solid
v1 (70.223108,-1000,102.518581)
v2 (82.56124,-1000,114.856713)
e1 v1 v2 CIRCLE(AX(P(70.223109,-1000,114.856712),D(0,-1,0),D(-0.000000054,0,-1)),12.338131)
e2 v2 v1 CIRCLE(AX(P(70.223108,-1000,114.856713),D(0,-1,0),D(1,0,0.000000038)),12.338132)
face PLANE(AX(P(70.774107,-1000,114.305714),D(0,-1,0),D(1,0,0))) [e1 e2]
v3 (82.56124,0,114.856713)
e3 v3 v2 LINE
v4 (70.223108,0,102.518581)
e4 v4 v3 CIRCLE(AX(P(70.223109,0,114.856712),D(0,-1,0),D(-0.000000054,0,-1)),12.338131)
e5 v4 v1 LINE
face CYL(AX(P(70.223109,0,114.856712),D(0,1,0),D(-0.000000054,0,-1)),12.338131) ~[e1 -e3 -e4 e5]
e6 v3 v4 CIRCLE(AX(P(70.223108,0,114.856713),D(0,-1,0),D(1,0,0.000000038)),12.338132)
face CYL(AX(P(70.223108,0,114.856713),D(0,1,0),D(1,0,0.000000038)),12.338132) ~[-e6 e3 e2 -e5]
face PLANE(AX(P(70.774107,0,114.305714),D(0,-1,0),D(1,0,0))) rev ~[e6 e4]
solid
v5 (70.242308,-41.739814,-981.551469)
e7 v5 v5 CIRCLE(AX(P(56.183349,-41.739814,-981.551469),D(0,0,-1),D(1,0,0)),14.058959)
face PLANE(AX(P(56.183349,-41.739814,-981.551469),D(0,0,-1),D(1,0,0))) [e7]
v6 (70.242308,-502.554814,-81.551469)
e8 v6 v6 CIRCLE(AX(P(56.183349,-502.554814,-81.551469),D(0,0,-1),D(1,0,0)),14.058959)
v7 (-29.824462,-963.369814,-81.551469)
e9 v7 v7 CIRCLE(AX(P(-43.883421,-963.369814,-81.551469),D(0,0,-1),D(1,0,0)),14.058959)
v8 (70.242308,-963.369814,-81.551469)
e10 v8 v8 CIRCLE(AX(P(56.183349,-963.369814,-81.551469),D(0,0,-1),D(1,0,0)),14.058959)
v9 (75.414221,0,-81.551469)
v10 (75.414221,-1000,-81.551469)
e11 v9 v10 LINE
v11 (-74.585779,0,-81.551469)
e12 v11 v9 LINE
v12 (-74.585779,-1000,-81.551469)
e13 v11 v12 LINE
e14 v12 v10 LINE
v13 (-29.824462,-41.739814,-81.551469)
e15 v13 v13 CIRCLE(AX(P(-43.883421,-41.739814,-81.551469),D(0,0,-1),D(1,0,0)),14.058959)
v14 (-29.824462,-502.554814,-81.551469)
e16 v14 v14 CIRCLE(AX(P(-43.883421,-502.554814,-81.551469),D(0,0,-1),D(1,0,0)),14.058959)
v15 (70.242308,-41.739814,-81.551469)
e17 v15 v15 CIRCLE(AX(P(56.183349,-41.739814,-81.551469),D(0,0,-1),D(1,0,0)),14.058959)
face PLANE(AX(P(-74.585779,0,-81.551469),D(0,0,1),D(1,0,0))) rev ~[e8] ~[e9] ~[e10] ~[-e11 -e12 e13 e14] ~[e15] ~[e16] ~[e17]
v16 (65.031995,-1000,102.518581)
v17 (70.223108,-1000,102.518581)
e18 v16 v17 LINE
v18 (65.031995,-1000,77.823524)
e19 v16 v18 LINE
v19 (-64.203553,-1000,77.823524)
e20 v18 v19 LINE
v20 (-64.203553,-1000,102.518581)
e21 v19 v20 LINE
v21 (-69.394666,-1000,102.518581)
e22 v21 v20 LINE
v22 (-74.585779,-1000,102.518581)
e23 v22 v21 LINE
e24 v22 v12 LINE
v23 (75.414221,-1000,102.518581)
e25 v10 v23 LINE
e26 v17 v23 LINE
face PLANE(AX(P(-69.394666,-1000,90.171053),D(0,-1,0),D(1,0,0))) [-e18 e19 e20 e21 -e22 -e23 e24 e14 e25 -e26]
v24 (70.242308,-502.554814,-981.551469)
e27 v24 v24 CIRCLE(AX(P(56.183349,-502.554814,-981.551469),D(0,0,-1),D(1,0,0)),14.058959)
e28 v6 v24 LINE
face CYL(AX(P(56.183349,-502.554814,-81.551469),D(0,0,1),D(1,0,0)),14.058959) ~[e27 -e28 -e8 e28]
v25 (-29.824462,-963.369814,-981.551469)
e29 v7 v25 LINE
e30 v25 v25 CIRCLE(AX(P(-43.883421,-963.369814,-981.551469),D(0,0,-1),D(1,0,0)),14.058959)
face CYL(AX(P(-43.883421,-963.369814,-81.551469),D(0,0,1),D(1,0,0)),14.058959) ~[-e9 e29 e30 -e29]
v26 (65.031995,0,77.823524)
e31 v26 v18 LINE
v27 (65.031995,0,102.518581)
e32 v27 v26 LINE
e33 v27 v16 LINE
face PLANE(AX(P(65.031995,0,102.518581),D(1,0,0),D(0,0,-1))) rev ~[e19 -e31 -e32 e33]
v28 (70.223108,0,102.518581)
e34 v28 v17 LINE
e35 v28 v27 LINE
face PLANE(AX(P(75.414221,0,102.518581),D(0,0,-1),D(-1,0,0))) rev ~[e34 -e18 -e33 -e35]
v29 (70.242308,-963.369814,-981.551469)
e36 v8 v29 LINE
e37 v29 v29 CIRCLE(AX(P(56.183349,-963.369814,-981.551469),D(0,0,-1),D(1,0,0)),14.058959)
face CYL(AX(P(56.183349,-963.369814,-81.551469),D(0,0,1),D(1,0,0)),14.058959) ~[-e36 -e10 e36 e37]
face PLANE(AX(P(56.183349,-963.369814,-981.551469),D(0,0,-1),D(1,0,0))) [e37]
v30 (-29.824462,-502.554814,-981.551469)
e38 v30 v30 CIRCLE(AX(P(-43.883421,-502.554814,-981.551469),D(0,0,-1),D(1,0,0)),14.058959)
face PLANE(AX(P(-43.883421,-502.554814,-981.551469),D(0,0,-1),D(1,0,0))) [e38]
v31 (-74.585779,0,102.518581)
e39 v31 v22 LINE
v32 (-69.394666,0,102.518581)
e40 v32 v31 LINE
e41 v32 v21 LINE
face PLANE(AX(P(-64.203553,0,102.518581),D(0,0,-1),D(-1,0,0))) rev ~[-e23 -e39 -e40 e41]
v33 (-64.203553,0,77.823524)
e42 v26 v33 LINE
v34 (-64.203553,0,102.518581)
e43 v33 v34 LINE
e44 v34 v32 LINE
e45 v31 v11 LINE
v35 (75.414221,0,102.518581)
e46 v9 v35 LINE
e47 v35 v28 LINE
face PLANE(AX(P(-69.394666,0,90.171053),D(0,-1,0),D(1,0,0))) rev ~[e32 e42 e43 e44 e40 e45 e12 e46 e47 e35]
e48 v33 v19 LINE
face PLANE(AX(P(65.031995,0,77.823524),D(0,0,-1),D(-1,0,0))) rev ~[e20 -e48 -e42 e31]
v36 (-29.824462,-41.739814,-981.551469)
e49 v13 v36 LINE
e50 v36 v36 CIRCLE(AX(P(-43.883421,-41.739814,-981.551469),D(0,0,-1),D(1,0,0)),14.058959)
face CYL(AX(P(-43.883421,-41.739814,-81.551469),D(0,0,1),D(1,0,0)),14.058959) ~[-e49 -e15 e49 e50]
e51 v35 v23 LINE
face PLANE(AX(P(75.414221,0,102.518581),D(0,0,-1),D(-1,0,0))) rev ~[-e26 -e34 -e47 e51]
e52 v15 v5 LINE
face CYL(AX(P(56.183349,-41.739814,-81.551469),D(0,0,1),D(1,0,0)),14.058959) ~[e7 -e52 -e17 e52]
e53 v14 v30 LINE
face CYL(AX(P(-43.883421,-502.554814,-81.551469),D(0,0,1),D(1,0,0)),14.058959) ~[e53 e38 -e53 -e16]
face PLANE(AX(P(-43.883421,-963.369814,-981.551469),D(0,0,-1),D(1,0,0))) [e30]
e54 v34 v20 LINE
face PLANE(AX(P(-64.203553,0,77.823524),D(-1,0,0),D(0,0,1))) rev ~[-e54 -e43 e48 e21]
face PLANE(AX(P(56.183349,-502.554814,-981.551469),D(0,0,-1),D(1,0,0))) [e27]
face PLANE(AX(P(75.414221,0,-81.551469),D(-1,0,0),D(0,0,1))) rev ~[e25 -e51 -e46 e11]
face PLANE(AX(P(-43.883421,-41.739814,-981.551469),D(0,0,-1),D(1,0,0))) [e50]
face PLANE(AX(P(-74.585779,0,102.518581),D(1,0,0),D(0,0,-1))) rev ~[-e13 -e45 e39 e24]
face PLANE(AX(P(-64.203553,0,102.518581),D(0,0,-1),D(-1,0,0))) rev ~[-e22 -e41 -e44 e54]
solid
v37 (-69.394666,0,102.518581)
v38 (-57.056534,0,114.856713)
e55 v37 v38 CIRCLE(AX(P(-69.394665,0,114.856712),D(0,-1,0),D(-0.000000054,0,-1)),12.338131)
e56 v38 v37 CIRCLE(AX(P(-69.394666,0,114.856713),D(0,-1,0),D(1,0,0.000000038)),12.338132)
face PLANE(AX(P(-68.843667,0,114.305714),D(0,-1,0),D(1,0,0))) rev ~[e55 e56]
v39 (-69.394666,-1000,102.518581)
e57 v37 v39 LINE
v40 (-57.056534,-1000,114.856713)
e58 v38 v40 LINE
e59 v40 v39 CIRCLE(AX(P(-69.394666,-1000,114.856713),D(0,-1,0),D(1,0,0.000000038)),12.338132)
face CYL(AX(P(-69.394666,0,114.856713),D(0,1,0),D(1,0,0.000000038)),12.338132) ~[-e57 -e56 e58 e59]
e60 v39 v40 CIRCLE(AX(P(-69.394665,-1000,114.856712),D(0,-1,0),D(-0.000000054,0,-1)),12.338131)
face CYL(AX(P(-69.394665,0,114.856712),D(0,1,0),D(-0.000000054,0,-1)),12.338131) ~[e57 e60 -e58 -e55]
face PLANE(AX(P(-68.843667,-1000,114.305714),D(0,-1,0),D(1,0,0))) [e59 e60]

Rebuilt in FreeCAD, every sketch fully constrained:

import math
import FreeCAD as App
import Part
import Sketcher
from FreeCAD import Vector
Q = App.Units.Quantity


def add_polygon(sketch, points):
    """Adds a closed chain of lines whose ends are joined by coincident constraints."""
    first, n = sketch.GeometryCount, len(points)
    for a, b in zip(points, points[1:] + points[:1]):
        sketch.addGeometry(Part.LineSegment(App.Vector(*a, 0), App.Vector(*b, 0)), False)
    for i in range(n):
        sketch.addConstraint(Sketcher.Constraint("Coincident", first + i, 2, first + (i + 1) % n, 1))

doc = App.newDocument("Part")
body = doc.addObject("PartDesign::Body", "Body")
body.AllowCompound = True

# Sketch on XZ plane
sketch1 = body.newObject("Sketcher::SketchObject", "Sketch")
sketch1.AttachmentSupport = (doc.getObject("XZ_Plane"), [""])
sketch1.MapMode = "FlatFace"
add_polygon(sketch1, [(-75, 103), (-75, -82), (75, -82), (75, 103), (70, 103), (65, 103), (65, 78), (-64, 78), (-64, 103), (-69, 103)])  # lines 0-9
sketch1.addGeometry(Part.ArcOfCircle(Part.Circle(Vector(-69, 115, 0), Vector(0, 0, 1), 12), math.radians(0), math.radians(270)), False)  # 10
sketch1.addGeometry(Part.ArcOfCircle(Part.Circle(Vector(-69, 115, 0), Vector(0, 0, 1), 12), math.radians(-90), math.radians(0)), False)  # 11
sketch1.addGeometry(Part.ArcOfCircle(Part.Circle(Vector(70, 115, 0), Vector(0, 0, 1), 12), math.radians(0), math.radians(270)), False)  # 12
sketch1.addGeometry(Part.ArcOfCircle(Part.Circle(Vector(70, 115, 0), Vector(0, 0, 1), 12), math.radians(-90), math.radians(0)), False)  # 13
sketch1.addConstraint([
    Sketcher.Constraint("Tangent", 10, 1, 11, 2),
    Sketcher.Constraint("Coincident", 11, 1, 10, 2),
    Sketcher.Constraint("Tangent", 12, 1, 13, 2),
    Sketcher.Constraint("Coincident", 13, 1, 12, 2),
    Sketcher.Constraint("Vertical", 0),
    Sketcher.Constraint("Horizontal", 1),
    Sketcher.Constraint("Vertical", 2),
    Sketcher.Constraint("Horizontal", 3),
    Sketcher.Constraint("Horizontal", 4),
    Sketcher.Constraint("Vertical", 5),
    Sketcher.Constraint("Horizontal", 6),
    Sketcher.Constraint("Vertical", 7),
    Sketcher.Constraint("Horizontal", 8),
    Sketcher.Constraint("Horizontal", 9),
    Sketcher.Constraint("Coincident", 11, 1, 8, 2),
    Sketcher.Constraint("Coincident", 13, 1, 3, 2),
    Sketcher.Constraint("Equal", 11, 12),
    Sketcher.Constraint("Horizontal", 11, 3, 12, 3),
    Sketcher.Constraint("Horizontal", 13, 3, 10, 1),
    Sketcher.Constraint("Horizontal", 10, 1, 12, 1),
    Sketcher.Constraint("Vertical", 13, 3, 3, 2),
    Sketcher.Constraint("Vertical", 11, 3, 8, 2),
    Sketcher.Constraint("Equal", 3, 4),
    Sketcher.Constraint("Equal", 4, 8),
    Sketcher.Constraint("Equal", 8, 9),
    Sketcher.Constraint("DistanceX", 1, 1, 1, 2, Q("150 mm")),
    Sketcher.Constraint("Radius", 10, Q("12.338132 mm")),
    Sketcher.Constraint("DistanceX", 6, 2, 6, 1, Q("129.235548 mm")),
    Sketcher.Constraint("DistanceY", 0, 2, 0, 1, Q("184.07005 mm")),
    Sketcher.Constraint("DistanceY", 5, 2, 5, 1, Q("24.695057 mm")),
    Sketcher.Constraint("DistanceX", -1, 1, 12, 3, Q("70.223108 mm")),
    Sketcher.Constraint("DistanceY", 0, 2, -1, 1, Q("81.551469 mm")),
])
pad1 = body.newObject("PartDesign::Pad", "Pad")
pad1.Profile = sketch1
pad1.Length = 1000

# Sketch on XY plane
sketch2 = body.newObject("Sketcher::SketchObject", "Sketch001")
sketch2.AttachmentSupport = (doc.getObject("XY_Plane"), [""])
sketch2.MapMode = "FlatFace"
sketch2.AttachmentOffset = App.Placement(Vector(0, 0, -81.551469), App.Rotation())
sketch2.addGeometry([
    Part.Circle(Vector(56, -42, 0), Vector(0, 0, 1), 14),  # 0
    Part.Circle(Vector(56, -503, 0), Vector(0, 0, 1), 14),  # 1
    Part.Circle(Vector(56, -963, 0), Vector(0, 0, 1), 14),  # 2
    Part.Circle(Vector(-44, -42, 0), Vector(0, 0, 1), 14),  # 3
    Part.Circle(Vector(-44, -503, 0), Vector(0, 0, 1), 14),  # 4
    Part.Circle(Vector(-44, -963, 0), Vector(0, 0, 1), 14),  # 5
], False)
sketch2.addConstraint([
    Sketcher.Constraint("Equal", 0, 1),
    Sketcher.Constraint("Equal", 1, 2),
    Sketcher.Constraint("Equal", 2, 3),
    Sketcher.Constraint("Equal", 3, 4),
    Sketcher.Constraint("Equal", 4, 5),
    Sketcher.Constraint("Horizontal", 0, 3, 3, 3),
    Sketcher.Constraint("Horizontal", 1, 3, 4, 3),
    Sketcher.Constraint("Horizontal", 2, 3, 5, 3),
    Sketcher.Constraint("Vertical", 0, 3, 1, 3),
    Sketcher.Constraint("Vertical", 1, 3, 2, 3),
    Sketcher.Constraint("Vertical", 3, 3, 4, 3),
    Sketcher.Constraint("Vertical", 4, 3, 5, 3),
    Sketcher.Constraint("DistanceY", 2, 3, 0, 3, Q("921.63 mm")),
    Sketcher.Constraint("Diameter", 0, Q("28.117918 mm")),
    Sketcher.Constraint("DistanceY", 1, 3, 0, 3, Q("460.815 mm")),
    Sketcher.Constraint("DistanceX", -1, 1, 0, 3, Q("56.183349 mm")),
    Sketcher.Constraint("DistanceX", 3, 3, -1, 1, Q("43.883421 mm")),
    Sketcher.Constraint("DistanceY", 0, 3, -1, 1, Q("41.739814 mm")),
])
pad2 = body.newObject("PartDesign::Pad", "Pad001")
pad2.Profile = sketch2
pad2.Length = 900
pad2.Reversed = True

doc.recompute()
